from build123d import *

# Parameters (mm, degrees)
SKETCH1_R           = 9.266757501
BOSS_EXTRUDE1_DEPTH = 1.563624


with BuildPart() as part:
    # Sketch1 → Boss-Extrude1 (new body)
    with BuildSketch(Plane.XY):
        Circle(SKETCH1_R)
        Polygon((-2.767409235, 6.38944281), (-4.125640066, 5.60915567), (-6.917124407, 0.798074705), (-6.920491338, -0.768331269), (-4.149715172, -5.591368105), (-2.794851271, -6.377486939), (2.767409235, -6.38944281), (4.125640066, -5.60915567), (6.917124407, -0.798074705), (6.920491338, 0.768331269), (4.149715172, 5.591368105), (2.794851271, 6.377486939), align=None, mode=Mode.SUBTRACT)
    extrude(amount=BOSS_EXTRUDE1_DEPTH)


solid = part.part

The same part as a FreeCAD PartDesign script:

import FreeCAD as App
import Part
import Sketcher

V = App.Vector
Q = App.Units.Quantity


def add_polygon(sketch, points):
    """Adds a closed chain of lines whose ends are joined by coincident constraints."""
    first, n = sketch.GeometryCount, len(points)
    for a, b in zip(points, points[1:] + points[:1]):
        sketch.addGeometry(Part.LineSegment(App.Vector(*a, 0), App.Vector(*b, 0)), False)
    for i in range(n):
        sketch.addConstraint(Sketcher.Constraint("Coincident", first + i, 2, first + (i + 1) % n, 1))

doc = App.newDocument("Part")
params = doc.addObject("Spreadsheet::Sheet", "Params")
for row, (alias, value) in enumerate([
    ("pad1_length", "1.563624 mm"),
], start=1):
    params.set(f"A{row}", alias)
    params.set(f"B{row}", "=" + value)
    params.setAlias(f"B{row}", alias)

body = doc.addObject("PartDesign::Body", "Body")

# Sketch on XY plane
sketch1 = doc.addObject("Sketcher::SketchObject", "Sketch")
body.addObject(sketch1)
sketch1.AttachmentSupport = (doc.XY_Plane, [""])
sketch1.MapMode = "FlatFace"
sketch1.addGeometry(Part.Circle(V(0, 0, 0), V(0, 0, 1), 9.3), False)  # 0
add_polygon(sketch1, [(-4.1, 5.6), (-2.8, 6.4), (2.8, 6.4), (4.1, 5.6), (6.9, 0.8), (6.9, -0.8), (4.1, -5.6), (2.8, -6.4), (-2.8, -6.4), (-4.1, -5.6), (-6.9, -0.8), (-6.9, 0.8)])  # lines 1-12
sketch1.addConstraint(Sketcher.Constraint("Coincident", 0, 3, -1, 1))
sketch1.addConstraint(Sketcher.Constraint("Symmetric", 1, 2, 7, 2, -1, 1))
sketch1.addConstraint(Sketcher.Constraint("Symmetric", 2, 2, 8, 2, -1, 1))
sketch1.addConstraint(Sketcher.Constraint("Symmetric", 3, 2, 9, 2, -1, 1))
sketch1.addConstraint(Sketcher.Constraint("Symmetric", 4, 2, 10, 2, -1, 1))
sketch1.addConstraint(Sketcher.Constraint("Symmetric", 5, 2, 11, 2, -1, 1))
sketch1.addConstraint(Sketcher.Constraint("Symmetric", 6, 2, 12, 2, -1, 1))
sketch1.addConstraint(Sketcher.Constraint("Perpendicular", 1, 4))
sketch1.addConstraint(Sketcher.Constraint("Perpendicular", 2, 5))
sketch1.addConstraint(Sketcher.Constraint("Perpendicular", 3, 6))
sketch1.addConstraint(Sketcher.Constraint("Equal", 1, 3))
sketch1.addConstraint(Sketcher.Constraint("Equal", 2, 4))
sketch1.addConstraint(Sketcher.Constraint("Equal", 3, 5))
sketch1.addConstraint(Sketcher.Constraint("Equal", 4, 6))
sketch1.addConstraint(Sketcher.Constraint("Diameter", 0, Q("18.533515 mm")))
sketch1.addConstraint(Sketcher.Constraint("DistanceX", 1, 2, 4, 2, Q("9.687901 mm")))
sketch1.addConstraint(Sketcher.Constraint("Distance", 1, Q("1.56641 mm")))
sketch1.addConstraint(Sketcher.Constraint("DistanceX", 1, 2, -1, 1, Q("2.767409 mm")))
sketch1.addConstraint(Sketcher.Constraint("DistanceX", -1, 1, 2, 2, Q("2.794851 mm")))
sketch1.addConstraint(Sketcher.Constraint("DistanceY", -1, 1, 3, 2, Q("5.591368 mm")))
pad1 = doc.addObject("PartDesign::Pad", "Pad")
body.addObject(pad1)
pad1.Profile = sketch1
pad1.setExpression("Length", "Params.pad1_length")

doc.recompute()
